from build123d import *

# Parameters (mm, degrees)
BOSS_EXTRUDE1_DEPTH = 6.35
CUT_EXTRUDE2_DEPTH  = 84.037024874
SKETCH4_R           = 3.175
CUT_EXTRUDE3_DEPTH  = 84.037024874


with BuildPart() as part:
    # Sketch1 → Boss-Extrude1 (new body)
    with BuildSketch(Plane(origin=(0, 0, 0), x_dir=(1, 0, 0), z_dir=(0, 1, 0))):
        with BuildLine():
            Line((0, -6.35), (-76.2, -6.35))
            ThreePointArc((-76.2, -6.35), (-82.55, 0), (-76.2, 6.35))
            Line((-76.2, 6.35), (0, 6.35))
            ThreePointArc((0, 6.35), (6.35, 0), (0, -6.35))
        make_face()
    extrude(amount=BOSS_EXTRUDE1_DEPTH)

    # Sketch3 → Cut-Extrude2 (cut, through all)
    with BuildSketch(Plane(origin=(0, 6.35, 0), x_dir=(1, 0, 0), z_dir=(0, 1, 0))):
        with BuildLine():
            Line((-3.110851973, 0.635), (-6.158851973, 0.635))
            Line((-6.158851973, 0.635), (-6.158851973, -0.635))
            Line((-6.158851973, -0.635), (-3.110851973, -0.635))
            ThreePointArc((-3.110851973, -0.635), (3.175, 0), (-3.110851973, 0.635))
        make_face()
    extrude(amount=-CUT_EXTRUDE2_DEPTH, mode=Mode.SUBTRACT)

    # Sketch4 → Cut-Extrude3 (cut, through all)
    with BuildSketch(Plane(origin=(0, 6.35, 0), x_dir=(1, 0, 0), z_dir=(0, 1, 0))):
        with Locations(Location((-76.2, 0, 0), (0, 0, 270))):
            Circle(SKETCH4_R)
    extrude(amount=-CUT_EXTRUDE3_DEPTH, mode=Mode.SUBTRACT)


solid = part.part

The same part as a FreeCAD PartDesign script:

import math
import FreeCAD as App
import Part
import Sketcher

V = App.Vector
Q = App.Units.Quantity

doc = App.newDocument("Part")
body = doc.addObject("PartDesign::Body", "Body")

sketch1 = body.newObject("Sketcher::SketchObject", "Sketch")
sketch1.AttachmentSupport = (doc.getObject("XZ_Plane"), [""])
sketch1.MapMode = "FlatFace"
sketch1.addGeometry(Part.LineSegment(V(-76.2, 6.35, 0), V(0, 6.35, 0)), False)
sketch1.addGeometry(Part.ArcOfCircle(Part.Circle(V(0, 0, 0), V(0, 0, 1), 6.35), math.radians(-90), math.radians(90)), False)
sketch1.addGeometry(Part.LineSegment(V(0, -6.35, 0), V(-76.2, -6.35, 0)), False)
sketch1.addGeometry(Part.ArcOfCircle(Part.Circle(V(-76.2, 0, 0), V(0, 0, 1), 6.35), math.radians(90), math.radians(270)), False)
sketch1.addConstraint(Sketcher.Constraint("Tangent", 0, 2, 1, 2))
sketch1.addConstraint(Sketcher.Constraint("Tangent", 1, 1, 2, 1))
sketch1.addConstraint(Sketcher.Constraint("Tangent", 2, 2, 3, 2))
sketch1.addConstraint(Sketcher.Constraint("Tangent", 3, 1, 0, 1))
sketch1.addConstraint(Sketcher.Constraint("Horizontal", 0))
sketch1.addConstraint(Sketcher.Constraint("Horizontal", 2))
sketch1.addConstraint(Sketcher.Constraint("Coincident", 1, 3, -1, 1))
sketch1.addConstraint(Sketcher.Constraint("DistanceX", 0, 1, 0, 2, Q("3 in")))
sketch1.addConstraint(Sketcher.Constraint("Radius", 1, Q("0.25 in")))
pad1 = body.newObject("PartDesign::Pad", "Pad")
pad1.Profile = sketch1
pad1.Length = Q("0.25 in")
pad1.Reversed = True

sketch2 = body.newObject("Sketcher::SketchObject", "Sketch001")
sketch2.AttachmentSupport = (doc.getObject("XZ_Plane"), [""])
sketch2.MapMode = "FlatFace"
sketch2.AttachmentOffset = App.Placement(V(0, 0, -0.25 * 25.4), App.Rotation())
sketch2.addGeometry(Part.LineSegment(V(-3.110852, -0.635, 0), V(-6.158852, -0.635, 0)), False)
sketch2.addGeometry(Part.LineSegment(V(-6.158852, -0.635, 0), V(-6.158852, 0.635, 0)), False)
sketch2.addGeometry(Part.LineSegment(V(-6.158852, 0.635, 0), V(-3.110852, 0.635, 0)), False)
sketch2.addGeometry(Part.ArcOfCircle(Part.Circle(V(0, 0, 0), V(0, 0, 1), 3.175), math.radians(-168.463041), math.radians(168.463041)), False)
sketch2.addConstraint(Sketcher.Constraint("Coincident", 0, 2, 1, 1))
sketch2.addConstraint(Sketcher.Constraint("Coincident", 1, 2, 2, 1))
sketch2.addConstraint(Sketcher.Constraint("Coincident", 2, 2, 3, 2))
sketch2.addConstraint(Sketcher.Constraint("Coincident", 3, 1, 0, 1))
sketch2.addConstraint(Sketcher.Constraint("Horizontal", 0))
sketch2.addConstraint(Sketcher.Constraint("Vertical", 1))
sketch2.addConstraint(Sketcher.Constraint("Horizontal", 2))
sketch2.addConstraint(Sketcher.Constraint("Coincident", 3, 3, -1, 1))
sketch2.addConstraint(Sketcher.Constraint("Vertical", 2, 2, 3, 1))
sketch2.addConstraint(Sketcher.Constraint("Radius", 3, Q("0.125 in")))
sketch2.addConstraint(Sketcher.Constraint("DistanceX", 0, 2, 0, 1, Q("0.12 in")))
sketch2.addConstraint(Sketcher.Constraint("DistanceY", 1, 1, 1, 2, Q("0.05 in")))
pocket1 = body.newObject("PartDesign::Pocket", "Pocket")
pocket1.Profile = sketch2
pocket1.Type = "ThroughAll"
pocket1.Reversed = True

sketch3 = body.newObject("Sketcher::SketchObject", "Sketch002")
sketch3.AttachmentSupport = (doc.getObject("XZ_Plane"), [""])
sketch3.MapMode = "FlatFace"
sketch3.AttachmentOffset = App.Placement(V(0, 0, -0.25 * 25.4), App.Rotation())
sketch3.addGeometry(Part.Circle(V(-76.2, 0, 0), V(0, 0, 1), 3.175), False)
sketch3.addConstraint(Sketcher.Constraint("PointOnObject", 0, 3, -1))
sketch3.addConstraint(Sketcher.Constraint("Diameter", 0, Q("0.25 in")))
sketch3.addConstraint(Sketcher.Constraint("DistanceX", 0, 3, -1, 1, Q("3 in")))
pocket2 = body.newObject("PartDesign::Pocket", "Pocket001")
pocket2.Profile = sketch3
pocket2.Type = "ThroughAll"
pocket2.Reversed = True

doc.recompute()
